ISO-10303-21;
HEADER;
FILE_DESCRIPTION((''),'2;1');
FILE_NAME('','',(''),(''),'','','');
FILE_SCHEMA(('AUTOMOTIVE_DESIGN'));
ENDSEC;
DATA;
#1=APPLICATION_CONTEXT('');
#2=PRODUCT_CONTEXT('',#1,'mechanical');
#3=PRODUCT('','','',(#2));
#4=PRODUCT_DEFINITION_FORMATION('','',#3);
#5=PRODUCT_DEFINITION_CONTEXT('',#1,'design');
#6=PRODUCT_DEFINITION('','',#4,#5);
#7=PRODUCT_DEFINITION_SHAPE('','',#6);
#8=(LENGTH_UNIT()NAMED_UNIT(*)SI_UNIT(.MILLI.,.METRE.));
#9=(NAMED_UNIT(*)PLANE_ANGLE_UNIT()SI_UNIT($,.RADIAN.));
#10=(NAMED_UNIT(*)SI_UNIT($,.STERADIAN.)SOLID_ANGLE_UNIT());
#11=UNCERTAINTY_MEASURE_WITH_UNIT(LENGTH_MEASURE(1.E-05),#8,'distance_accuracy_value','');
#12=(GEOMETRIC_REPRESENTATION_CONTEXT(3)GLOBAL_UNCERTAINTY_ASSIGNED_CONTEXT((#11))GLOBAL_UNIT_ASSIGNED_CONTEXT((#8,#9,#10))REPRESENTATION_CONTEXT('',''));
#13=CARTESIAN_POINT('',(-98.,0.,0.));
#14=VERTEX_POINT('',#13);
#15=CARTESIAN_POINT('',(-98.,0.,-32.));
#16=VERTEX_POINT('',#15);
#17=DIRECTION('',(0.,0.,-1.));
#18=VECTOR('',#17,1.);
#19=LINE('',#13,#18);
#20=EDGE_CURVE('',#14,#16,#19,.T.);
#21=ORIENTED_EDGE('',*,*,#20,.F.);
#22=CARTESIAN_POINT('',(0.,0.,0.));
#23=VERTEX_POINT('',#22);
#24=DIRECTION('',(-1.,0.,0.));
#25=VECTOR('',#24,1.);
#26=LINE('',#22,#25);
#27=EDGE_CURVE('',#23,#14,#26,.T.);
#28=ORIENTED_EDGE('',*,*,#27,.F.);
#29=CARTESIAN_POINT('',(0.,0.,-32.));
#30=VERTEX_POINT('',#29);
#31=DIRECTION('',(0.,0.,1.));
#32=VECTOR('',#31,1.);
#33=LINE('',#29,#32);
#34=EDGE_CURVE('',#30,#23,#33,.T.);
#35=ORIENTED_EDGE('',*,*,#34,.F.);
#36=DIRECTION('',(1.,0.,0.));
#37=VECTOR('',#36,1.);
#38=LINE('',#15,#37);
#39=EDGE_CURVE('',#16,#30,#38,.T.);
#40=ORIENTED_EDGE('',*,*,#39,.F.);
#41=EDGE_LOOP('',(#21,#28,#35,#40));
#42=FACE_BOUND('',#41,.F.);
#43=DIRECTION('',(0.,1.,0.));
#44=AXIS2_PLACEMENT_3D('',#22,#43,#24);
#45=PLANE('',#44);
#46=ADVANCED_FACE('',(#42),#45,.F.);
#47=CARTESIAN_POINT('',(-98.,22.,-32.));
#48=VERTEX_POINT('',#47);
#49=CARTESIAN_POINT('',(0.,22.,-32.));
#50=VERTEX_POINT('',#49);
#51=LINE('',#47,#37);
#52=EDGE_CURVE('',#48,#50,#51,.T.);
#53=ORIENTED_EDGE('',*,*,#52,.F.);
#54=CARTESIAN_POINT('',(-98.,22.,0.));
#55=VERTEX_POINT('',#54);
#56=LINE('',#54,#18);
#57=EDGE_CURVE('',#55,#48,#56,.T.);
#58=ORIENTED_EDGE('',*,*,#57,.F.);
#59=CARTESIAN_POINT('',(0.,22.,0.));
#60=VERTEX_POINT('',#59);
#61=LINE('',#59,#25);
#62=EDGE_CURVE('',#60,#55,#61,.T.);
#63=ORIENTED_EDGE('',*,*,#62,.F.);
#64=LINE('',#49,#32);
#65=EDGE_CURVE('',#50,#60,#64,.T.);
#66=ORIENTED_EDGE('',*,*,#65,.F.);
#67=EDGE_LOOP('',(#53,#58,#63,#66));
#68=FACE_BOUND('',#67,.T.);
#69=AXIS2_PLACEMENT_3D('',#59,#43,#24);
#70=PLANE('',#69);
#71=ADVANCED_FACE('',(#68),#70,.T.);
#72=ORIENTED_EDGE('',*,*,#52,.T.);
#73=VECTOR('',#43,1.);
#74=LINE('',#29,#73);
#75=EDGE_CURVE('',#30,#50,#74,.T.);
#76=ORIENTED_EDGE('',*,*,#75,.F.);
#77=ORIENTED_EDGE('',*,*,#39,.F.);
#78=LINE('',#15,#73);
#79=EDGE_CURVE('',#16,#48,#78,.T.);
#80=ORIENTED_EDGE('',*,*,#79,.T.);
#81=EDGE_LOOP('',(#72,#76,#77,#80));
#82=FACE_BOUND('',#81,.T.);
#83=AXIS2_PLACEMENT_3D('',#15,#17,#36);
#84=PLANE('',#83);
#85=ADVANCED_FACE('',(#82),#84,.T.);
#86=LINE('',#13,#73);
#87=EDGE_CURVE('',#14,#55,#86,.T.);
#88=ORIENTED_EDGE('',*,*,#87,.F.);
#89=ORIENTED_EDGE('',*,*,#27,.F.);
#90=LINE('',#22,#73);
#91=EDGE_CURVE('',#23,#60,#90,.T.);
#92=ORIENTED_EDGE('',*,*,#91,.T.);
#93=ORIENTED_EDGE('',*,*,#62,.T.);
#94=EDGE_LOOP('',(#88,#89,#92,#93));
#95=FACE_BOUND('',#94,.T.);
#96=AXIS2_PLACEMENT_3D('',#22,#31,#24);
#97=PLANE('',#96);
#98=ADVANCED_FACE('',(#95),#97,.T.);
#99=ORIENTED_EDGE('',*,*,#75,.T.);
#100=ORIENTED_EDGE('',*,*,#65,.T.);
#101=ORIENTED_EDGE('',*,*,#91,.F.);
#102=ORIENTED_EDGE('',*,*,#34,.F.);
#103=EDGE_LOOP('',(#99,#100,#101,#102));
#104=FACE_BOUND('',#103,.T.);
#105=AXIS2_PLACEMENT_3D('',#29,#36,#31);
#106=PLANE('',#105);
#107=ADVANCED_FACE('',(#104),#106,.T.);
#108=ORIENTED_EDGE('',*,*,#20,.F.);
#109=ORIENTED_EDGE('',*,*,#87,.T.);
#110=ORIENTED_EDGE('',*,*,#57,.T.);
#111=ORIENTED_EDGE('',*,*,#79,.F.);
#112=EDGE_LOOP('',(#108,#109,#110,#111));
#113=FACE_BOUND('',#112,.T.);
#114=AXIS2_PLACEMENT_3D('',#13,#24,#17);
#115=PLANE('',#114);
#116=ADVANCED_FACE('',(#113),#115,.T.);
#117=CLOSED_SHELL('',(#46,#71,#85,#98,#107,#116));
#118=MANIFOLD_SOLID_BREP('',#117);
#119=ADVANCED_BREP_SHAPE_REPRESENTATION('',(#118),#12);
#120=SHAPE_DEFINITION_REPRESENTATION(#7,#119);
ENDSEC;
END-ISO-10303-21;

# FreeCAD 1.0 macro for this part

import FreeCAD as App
import Part
import Sketcher

V = App.Vector

doc = App.newDocument("Part")
body = doc.addObject("PartDesign::Body", "Body")

# Sketch on XZ plane
sketch1 = body.newObject("Sketcher::SketchObject", "Sketch")
sketch1.AttachmentSupport = (doc.getObject("XZ_Plane"), [""])
sketch1.MapMode = "FlatFace"
sketch1.addGeometry([
    Part.LineSegment(V(-98, 0, 0), V(0, 0, 0)),
    Part.LineSegment(V(0, 0, 0), V(0, -32, 0)),
    Part.LineSegment(V(0, -32, 0), V(-98, -32, 0)),
    Part.LineSegment(V(-98, -32, 0), V(-98, 0, 0)),
], False)
sketch1.addConstraint([
    Sketcher.Constraint("Coincident", 0, 2, 1, 1),
    Sketcher.Constraint("Coincident", 1, 2, 2, 1),
    Sketcher.Constraint("Coincident", 2, 2, 3, 1),
    Sketcher.Constraint("Coincident", 3, 2, 0, 1),
    Sketcher.Constraint("Horizontal", 0),
    Sketcher.Constraint("Vertical", 1),
    Sketcher.Constraint("Horizontal", 2),
    Sketcher.Constraint("Vertical", 3),
    Sketcher.Constraint("Coincident", 0, 2, -1, 1),
    Sketcher.Constraint("DistanceX", 0, 1, 0, 2, 98.0),
    Sketcher.Constraint("DistanceY", 1, 2, 1, 1, 32.0),
])
pad1 = body.newObject("PartDesign::Pad", "Pad")
pad1.Profile = sketch1
pad1.Length = 22
pad1.Reversed = True

doc.recompute()
